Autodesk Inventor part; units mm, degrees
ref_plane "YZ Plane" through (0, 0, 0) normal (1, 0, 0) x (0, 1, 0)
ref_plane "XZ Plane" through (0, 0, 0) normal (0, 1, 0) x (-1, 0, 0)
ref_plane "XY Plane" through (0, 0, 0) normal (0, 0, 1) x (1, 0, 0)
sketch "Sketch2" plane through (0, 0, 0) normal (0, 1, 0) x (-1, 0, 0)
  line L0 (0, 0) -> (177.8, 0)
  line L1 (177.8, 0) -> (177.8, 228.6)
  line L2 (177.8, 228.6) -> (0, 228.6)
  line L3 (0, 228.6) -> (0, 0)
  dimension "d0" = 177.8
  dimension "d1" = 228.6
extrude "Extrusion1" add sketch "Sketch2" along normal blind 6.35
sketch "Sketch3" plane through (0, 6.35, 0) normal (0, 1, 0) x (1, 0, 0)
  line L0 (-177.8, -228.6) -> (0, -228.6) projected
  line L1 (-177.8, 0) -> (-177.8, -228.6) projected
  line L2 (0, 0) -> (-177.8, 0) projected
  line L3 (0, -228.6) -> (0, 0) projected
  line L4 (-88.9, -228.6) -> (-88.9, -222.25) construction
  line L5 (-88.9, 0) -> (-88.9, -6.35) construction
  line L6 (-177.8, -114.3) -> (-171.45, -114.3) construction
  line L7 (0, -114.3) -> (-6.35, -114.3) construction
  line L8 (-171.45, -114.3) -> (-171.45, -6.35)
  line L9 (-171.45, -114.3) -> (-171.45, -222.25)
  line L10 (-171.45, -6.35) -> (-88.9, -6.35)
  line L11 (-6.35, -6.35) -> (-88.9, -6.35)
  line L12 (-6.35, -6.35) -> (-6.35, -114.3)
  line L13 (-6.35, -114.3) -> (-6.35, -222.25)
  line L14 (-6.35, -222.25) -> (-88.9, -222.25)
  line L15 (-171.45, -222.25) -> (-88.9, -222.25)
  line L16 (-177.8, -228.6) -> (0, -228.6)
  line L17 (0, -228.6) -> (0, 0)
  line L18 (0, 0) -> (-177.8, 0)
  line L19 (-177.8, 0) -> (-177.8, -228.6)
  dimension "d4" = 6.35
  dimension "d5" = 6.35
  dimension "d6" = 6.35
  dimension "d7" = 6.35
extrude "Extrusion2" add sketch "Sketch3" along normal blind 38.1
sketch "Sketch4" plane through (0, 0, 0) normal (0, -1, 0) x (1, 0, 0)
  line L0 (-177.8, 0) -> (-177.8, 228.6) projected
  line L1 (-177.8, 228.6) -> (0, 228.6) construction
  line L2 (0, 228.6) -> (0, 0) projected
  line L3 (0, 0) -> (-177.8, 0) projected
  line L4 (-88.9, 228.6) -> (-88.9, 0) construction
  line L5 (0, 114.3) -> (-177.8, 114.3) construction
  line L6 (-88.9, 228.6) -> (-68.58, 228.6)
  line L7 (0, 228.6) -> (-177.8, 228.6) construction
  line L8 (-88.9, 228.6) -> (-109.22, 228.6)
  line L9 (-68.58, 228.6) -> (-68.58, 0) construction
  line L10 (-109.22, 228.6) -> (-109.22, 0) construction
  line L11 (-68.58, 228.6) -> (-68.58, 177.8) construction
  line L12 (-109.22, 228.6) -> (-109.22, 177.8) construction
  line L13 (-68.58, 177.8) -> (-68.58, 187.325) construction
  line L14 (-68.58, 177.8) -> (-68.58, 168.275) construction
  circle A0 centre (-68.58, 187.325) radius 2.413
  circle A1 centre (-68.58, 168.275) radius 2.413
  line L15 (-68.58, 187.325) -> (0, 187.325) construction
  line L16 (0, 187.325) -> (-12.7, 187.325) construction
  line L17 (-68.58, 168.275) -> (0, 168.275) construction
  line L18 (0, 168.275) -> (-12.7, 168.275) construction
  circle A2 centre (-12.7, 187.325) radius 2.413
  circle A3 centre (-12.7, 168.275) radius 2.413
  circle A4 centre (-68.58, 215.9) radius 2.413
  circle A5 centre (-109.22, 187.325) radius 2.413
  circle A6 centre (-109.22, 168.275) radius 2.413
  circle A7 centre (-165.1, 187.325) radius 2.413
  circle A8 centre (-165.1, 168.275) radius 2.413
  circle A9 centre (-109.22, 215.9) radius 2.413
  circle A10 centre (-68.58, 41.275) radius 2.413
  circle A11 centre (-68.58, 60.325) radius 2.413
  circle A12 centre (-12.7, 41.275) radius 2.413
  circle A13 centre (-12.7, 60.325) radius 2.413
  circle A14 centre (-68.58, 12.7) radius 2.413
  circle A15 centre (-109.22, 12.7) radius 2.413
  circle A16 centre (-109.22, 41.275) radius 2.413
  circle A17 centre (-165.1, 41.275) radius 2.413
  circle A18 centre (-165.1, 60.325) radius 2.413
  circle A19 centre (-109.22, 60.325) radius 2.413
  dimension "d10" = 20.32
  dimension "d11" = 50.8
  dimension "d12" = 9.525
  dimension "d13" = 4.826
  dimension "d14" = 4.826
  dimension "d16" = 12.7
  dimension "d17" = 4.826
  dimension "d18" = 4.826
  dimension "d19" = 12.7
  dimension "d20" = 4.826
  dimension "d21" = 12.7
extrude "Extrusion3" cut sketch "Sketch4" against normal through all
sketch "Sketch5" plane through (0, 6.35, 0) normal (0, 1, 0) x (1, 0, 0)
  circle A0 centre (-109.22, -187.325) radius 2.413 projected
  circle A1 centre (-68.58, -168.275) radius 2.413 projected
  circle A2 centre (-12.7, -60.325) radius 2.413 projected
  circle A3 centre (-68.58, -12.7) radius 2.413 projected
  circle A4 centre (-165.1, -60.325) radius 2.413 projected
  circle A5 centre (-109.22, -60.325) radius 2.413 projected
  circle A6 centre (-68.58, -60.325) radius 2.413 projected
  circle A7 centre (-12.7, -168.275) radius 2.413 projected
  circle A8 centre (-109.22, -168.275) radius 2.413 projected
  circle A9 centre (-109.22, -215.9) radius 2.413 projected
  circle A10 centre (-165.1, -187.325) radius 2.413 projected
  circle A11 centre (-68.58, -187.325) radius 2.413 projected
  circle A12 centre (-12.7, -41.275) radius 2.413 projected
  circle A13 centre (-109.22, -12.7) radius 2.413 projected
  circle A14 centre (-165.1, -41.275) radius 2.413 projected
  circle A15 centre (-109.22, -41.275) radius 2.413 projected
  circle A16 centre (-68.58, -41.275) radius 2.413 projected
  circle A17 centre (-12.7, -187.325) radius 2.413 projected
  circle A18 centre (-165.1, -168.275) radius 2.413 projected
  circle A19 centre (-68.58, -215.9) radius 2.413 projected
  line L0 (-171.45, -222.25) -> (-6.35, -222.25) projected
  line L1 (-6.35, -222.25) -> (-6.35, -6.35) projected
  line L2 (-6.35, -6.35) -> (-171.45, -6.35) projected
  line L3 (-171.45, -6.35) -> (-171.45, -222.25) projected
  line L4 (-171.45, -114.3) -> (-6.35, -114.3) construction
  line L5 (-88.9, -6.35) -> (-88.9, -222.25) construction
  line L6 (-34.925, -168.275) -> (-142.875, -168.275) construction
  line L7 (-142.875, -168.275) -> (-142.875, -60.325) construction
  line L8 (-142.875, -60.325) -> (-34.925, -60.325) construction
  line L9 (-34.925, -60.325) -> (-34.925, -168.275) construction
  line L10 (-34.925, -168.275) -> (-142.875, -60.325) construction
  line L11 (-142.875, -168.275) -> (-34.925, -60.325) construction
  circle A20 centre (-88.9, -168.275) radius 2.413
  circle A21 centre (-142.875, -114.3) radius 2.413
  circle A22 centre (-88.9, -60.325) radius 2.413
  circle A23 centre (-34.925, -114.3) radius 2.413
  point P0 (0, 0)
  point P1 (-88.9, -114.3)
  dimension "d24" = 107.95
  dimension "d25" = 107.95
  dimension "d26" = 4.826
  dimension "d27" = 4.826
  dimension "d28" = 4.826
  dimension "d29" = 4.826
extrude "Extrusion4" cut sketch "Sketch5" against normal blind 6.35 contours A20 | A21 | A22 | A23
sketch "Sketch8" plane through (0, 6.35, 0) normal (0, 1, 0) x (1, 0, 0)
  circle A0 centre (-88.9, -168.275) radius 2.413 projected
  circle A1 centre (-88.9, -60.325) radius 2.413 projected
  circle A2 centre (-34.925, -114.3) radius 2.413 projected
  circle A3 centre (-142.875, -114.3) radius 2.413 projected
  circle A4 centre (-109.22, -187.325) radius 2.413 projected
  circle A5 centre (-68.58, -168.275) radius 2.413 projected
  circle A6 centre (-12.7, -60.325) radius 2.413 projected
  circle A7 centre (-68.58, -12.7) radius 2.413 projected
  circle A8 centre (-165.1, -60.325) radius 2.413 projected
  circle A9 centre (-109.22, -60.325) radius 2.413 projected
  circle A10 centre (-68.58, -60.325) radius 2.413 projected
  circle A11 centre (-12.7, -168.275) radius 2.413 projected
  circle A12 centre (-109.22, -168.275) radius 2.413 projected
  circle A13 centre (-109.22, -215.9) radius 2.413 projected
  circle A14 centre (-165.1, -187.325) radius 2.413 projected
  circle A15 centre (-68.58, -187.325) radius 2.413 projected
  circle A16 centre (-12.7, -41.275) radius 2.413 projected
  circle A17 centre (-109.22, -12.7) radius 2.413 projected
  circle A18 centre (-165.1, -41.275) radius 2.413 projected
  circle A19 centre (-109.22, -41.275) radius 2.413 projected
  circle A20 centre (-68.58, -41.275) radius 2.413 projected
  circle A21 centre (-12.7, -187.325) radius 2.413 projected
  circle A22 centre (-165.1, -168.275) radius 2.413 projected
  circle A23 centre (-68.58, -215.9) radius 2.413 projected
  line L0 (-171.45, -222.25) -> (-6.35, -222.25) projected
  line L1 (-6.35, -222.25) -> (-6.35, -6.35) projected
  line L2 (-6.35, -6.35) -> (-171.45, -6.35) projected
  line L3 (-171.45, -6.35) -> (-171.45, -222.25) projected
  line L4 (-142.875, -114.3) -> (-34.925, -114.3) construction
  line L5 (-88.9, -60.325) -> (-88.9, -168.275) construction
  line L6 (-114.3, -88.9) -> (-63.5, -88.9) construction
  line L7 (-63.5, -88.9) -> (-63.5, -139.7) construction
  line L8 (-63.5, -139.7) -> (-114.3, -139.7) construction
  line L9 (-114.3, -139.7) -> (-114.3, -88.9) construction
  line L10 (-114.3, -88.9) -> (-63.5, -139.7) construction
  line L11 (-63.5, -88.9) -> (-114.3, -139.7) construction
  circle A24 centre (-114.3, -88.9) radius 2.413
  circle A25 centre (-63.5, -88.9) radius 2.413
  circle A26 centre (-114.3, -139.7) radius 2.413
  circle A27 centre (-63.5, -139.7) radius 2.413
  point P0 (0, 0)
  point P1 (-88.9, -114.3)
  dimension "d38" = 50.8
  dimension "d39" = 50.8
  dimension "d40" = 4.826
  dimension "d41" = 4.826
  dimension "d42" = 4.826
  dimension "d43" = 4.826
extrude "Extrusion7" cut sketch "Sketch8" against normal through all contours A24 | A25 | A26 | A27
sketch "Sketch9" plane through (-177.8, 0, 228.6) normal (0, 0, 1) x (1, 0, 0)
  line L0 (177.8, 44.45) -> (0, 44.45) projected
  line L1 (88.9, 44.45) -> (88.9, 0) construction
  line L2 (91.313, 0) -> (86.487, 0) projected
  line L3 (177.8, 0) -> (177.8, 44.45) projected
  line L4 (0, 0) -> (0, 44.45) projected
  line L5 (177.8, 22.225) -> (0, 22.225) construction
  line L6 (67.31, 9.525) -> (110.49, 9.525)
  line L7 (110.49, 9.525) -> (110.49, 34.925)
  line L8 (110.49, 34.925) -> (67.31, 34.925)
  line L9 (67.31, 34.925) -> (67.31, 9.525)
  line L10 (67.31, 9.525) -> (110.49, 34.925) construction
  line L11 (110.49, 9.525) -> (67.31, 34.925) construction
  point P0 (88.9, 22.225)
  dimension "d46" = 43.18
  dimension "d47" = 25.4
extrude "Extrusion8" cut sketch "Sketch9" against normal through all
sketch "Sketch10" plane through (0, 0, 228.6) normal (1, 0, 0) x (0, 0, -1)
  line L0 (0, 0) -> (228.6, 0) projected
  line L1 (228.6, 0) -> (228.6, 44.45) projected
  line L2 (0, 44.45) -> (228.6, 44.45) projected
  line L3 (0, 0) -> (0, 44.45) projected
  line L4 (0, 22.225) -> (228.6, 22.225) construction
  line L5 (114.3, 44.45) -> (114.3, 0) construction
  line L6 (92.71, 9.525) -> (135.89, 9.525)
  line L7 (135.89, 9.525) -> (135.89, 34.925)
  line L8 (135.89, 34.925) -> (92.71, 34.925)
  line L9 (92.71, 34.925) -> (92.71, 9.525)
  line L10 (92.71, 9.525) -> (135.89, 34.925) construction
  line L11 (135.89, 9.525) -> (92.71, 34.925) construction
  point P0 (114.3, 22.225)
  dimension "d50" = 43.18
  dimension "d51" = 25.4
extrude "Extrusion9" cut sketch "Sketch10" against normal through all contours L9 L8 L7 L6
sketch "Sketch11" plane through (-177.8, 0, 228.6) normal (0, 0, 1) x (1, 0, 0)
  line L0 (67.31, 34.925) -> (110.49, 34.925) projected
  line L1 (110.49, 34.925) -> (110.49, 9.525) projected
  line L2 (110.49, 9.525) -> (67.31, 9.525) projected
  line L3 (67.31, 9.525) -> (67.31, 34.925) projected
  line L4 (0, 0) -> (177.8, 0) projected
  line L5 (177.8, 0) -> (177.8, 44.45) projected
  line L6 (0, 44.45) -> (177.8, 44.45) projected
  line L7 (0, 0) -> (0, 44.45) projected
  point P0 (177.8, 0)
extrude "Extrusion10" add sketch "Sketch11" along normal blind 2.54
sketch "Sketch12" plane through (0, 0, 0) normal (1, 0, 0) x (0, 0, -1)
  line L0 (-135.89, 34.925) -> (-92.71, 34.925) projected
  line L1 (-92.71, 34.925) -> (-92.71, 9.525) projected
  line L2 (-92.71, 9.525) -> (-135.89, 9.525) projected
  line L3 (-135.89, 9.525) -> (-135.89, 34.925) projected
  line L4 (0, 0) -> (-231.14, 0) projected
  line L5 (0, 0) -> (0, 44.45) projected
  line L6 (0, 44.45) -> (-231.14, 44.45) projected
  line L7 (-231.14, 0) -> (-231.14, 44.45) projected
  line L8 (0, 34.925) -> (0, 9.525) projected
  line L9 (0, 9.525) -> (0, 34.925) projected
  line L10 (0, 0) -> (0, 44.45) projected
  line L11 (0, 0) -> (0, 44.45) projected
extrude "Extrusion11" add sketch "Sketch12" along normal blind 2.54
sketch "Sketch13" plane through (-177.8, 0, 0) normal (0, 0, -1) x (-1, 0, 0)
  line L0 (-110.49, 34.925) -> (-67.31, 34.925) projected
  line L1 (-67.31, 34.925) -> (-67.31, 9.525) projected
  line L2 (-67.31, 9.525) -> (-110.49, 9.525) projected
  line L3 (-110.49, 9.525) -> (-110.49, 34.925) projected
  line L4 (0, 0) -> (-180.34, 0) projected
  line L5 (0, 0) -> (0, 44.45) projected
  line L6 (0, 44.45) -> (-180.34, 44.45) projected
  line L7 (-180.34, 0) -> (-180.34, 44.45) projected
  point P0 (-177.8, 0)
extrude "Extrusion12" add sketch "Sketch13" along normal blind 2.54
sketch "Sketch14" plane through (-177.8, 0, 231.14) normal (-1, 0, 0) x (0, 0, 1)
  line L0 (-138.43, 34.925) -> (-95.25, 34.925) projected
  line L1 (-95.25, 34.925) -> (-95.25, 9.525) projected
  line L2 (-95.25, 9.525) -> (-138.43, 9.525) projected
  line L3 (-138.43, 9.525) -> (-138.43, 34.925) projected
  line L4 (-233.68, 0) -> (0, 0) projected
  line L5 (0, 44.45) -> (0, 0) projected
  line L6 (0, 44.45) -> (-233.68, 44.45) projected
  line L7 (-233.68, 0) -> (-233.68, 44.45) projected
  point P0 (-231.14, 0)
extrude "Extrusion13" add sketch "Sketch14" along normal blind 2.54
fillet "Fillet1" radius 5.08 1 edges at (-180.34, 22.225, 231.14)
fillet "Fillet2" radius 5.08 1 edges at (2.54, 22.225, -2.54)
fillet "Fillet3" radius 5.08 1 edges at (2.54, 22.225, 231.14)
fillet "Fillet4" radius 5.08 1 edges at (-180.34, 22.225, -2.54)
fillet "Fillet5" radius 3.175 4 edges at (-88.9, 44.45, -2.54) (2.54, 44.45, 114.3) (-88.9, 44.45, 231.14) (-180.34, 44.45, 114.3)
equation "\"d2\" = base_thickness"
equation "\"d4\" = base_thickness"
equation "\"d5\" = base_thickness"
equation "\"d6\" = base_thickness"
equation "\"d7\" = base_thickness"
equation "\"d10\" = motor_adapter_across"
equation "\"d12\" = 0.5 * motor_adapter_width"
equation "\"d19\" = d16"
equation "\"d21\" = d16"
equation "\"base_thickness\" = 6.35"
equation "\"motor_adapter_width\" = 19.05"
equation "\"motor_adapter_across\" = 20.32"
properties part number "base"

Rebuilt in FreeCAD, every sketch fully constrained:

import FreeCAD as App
import Part
import Sketcher
from FreeCAD import Vector
Q = App.Units.Quantity


def edges_at(feature, points):
    """Names of the edges that pass closest to the given points."""
    edges = feature.Shape.Edges
    near = lambda p: min(range(len(edges)), key=lambda i: edges[i].distToShape(Part.Vertex(*p))[0])
    return sorted({f"Edge{near(p) + 1}" for p in points})

doc = App.newDocument("Part")
params = doc.addObject("Spreadsheet::Sheet", "Params")
for row, (alias, value) in enumerate([
    ("sketch1_width", "7 in"),
    ("sketch1_height", "9 in"),
    ("pad1_length", "0.25 in"),
    ("sketch2_width", "7 in"),
    ("sketch2_height", "9 in"),
    ("pad2_length", "1.5 in"),
    ("sketch3_diameter", "0.19 in"),
    ("sketch4_diameter", "0.19 in"),
    ("pocket2_length", "0.25 in"),
    ("sketch5_diameter", "0.19 in"),
    ("sketch6_height", "1 in"),
    ("sketch6_width", "1.7 in"),
    ("sketch7_width", "1 in"),
    ("sketch7_height", "1.7 in"),
    ("sketch8_width", "7 in"),
    ("sketch8_height", "1 in"),
    ("sketch8_width2", "1.7 in"),
    ("sketch8_height2", "1.75 in"),
    ("pad3_length", "0.1 in"),
    ("sketch9_width", "1 in"),
    ("sketch9_height", "9.1 in"),
    ("sketch9_height2", "1.7 in"),
    ("sketch9_width2", "1.75 in"),
    ("pad4_length", "0.1 in"),
    ("sketch10_height", "1 in"),
    ("sketch10_width", "7.1 in"),
    ("sketch10_width2", "1.7 in"),
    ("sketch10_height2", "1.75 in"),
    ("pad5_length", "0.1 in"),
    ("sketch11_width", "1 in"),
    ("sketch11_height", "9.2 in"),
    ("sketch11_height2", "1.7 in"),
    ("sketch11_width2", "1.75 in"),
    ("pad6_length", "0.1 in"),
    ("fillet_radius", "0.2 in"),
    ("fillet2_radius", "0.2 in"),
    ("fillet3_radius", "0.2 in"),
    ("fillet4_radius", "0.2 in"),
    ("fillet5_radius", "0.125 in"),
], start=1):
    params.set(f"A{row}", alias)
    params.set(f"B{row}", "=" + value)
    params.setAlias(f"B{row}", alias)

body = doc.addObject("PartDesign::Body", "Body")

# Sketch on XZ plane
sketch1 = body.newObject("Sketcher::SketchObject", "Sketch")
sketch1.AttachmentSupport = (doc.getObject("XZ_Plane"), [""])
sketch1.MapMode = "FlatFace"
sketch1.addGeometry([
    Part.LineSegment(Vector(0, 228.6, 0), Vector(0, 0, 0)),
    Part.LineSegment(Vector(0, 0, 0), Vector(-177.8, 0, 0)),
    Part.LineSegment(Vector(-177.8, 0, 0), Vector(-177.8, 228.6, 0)),
    Part.LineSegment(Vector(-177.8, 228.6, 0), Vector(0, 228.6, 0)),
], False)
sketch1.addConstraint([
    Sketcher.Constraint("Coincident", 0, 2, 1, 1),
    Sketcher.Constraint("Coincident", 1, 2, 2, 1),
    Sketcher.Constraint("Coincident", 2, 2, 3, 1),
    Sketcher.Constraint("Coincident", 3, 2, 0, 1),
    Sketcher.Constraint("Vertical", 0),
    Sketcher.Constraint("Horizontal", 1),
    Sketcher.Constraint("Vertical", 2),
    Sketcher.Constraint("Horizontal", 3),
    Sketcher.Constraint("Coincident", 0, 2, -1, 1),
    Sketcher.Constraint("DistanceX", 1, 2, 1, 1, Q("7 in")),
    Sketcher.Constraint("DistanceY", 0, 2, 0, 1, Q("9 in")),
])
sketch1.setExpression("Constraints[9]", "Params.sketch1_width")
sketch1.setExpression("Constraints[10]", "Params.sketch1_height")
pad1 = body.newObject("PartDesign::Pad", "Pad")
pad1.Profile = sketch1
pad1.setExpression("Length", "Params.pad1_length")
pad1.Reversed = True

# Sketch on XZ plane
sketch2 = body.newObject("Sketcher::SketchObject", "Sketch001")
sketch2.AttachmentSupport = (doc.getObject("XZ_Plane"), [""])
sketch2.MapMode = "FlatFace"
sketch2.AttachmentOffset = App.Placement(Vector(0, 0, -0.25 * 25.4), App.Rotation())
sketch2.addGeometry([
    Part.LineSegment(Vector(-177.8, 0, 0), Vector(-177.8, 228.6, 0)),  # 0
    Part.LineSegment(Vector(-177.8, 228.6, 0), Vector(0, 228.6, 0)),  # 1
    Part.LineSegment(Vector(0, 228.6, 0), Vector(0, 0, 0)),  # 2
    Part.LineSegment(Vector(0, 0, 0), Vector(-177.8, 0, 0)),  # 3
    Part.LineSegment(Vector(-171.45, 222.25, 0), Vector(-171.45, 6.35, 0)),  # 4
    Part.LineSegment(Vector(-171.45, 6.35, 0), Vector(-6.35, 6.35, 0)),  # 5
    Part.LineSegment(Vector(-6.35, 6.35, 0), Vector(-6.35, 222.25, 0)),  # 6
    Part.LineSegment(Vector(-6.35, 222.25, 0), Vector(-171.45, 222.25, 0)),  # 7
], False)
sketch2.addConstraint([
    Sketcher.Constraint("Coincident", 0, 2, 1, 1),
    Sketcher.Constraint("Coincident", 1, 2, 2, 1),
    Sketcher.Constraint("Coincident", 2, 2, 3, 1),
    Sketcher.Constraint("Coincident", 3, 2, 0, 1),
    Sketcher.Constraint("Coincident", 4, 2, 5, 1),
    Sketcher.Constraint("Coincident", 5, 2, 6, 1),
    Sketcher.Constraint("Coincident", 6, 2, 7, 1),
    Sketcher.Constraint("Coincident", 7, 2, 4, 1),
    Sketcher.Constraint("Vertical", 0),
    Sketcher.Constraint("Horizontal", 1),
    Sketcher.Constraint("Vertical", 2),
    Sketcher.Constraint("Horizontal", 3),
    Sketcher.Constraint("Vertical", 4),
    Sketcher.Constraint("Horizontal", 5),
    Sketcher.Constraint("Vertical", 6),
    Sketcher.Constraint("Horizontal", 7),
    Sketcher.Constraint("Coincident", 2, 2, -1, 1),
    Sketcher.Constraint("DistanceX", 1, 1, 1, 2, Q("7 in")),
    Sketcher.Constraint("DistanceY", 0, 1, 0, 2, Q("9 in")),
    Sketcher.Constraint("DistanceY", -1, 1, 4, 2, Q("0.25 in")),
    Sketcher.Constraint("DistanceX", 5, 2, -1, 1, Q("0.25 in")),
    Sketcher.Constraint("DistanceX", 3, 2, 4, 2, Q("0.25 in")),
    Sketcher.Constraint("DistanceY", 6, 2, 1, 2, Q("0.25 in")),
])
sketch2.setExpression("Constraints[17]", "Params.sketch2_width")
sketch2.setExpression("Constraints[18]", "Params.sketch2_height")
pad2 = body.newObject("PartDesign::Pad", "Pad001")
pad2.Profile = sketch2
pad2.setExpression("Length", "Params.pad2_length")
pad2.Reversed = True

# Sketch on XZ plane
sketch3 = body.newObject("Sketcher::SketchObject", "Sketch002")
sketch3.AttachmentSupport = (doc.getObject("XZ_Plane"), [""])
sketch3.MapMode = "FlatFace"
sketch3.addGeometry([
    Part.Circle(Vector(-68.58, 187.325, 0), Vector(0, 0, 1), 2.413),  # 0
    Part.Circle(Vector(-68.58, 168.275, 0), Vector(0, 0, 1), 2.413),  # 1
    Part.Circle(Vector(-12.7, 187.325, 0), Vector(0, 0, 1), 2.413),  # 2
    Part.Circle(Vector(-12.7, 168.275, 0), Vector(0, 0, 1), 2.413),  # 3
    Part.Circle(Vector(-68.58, 215.9, 0), Vector(0, 0, 1), 2.413),  # 4
    Part.Circle(Vector(-109.22, 187.325, 0), Vector(0, 0, 1), 2.413),  # 5
    Part.Circle(Vector(-109.22, 168.275, 0), Vector(0, 0, 1), 2.413),  # 6
    Part.Circle(Vector(-165.1, 187.325, 0), Vector(0, 0, 1), 2.413),  # 7
    Part.Circle(Vector(-165.1, 168.275, 0), Vector(0, 0, 1), 2.413),  # 8
    Part.Circle(Vector(-109.22, 215.9, 0), Vector(0, 0, 1), 2.413),  # 9
    Part.Circle(Vector(-68.58, 41.275, 0), Vector(0, 0, 1), 2.413),  # 10
    Part.Circle(Vector(-68.58, 60.325, 0), Vector(0, 0, 1), 2.413),  # 11
    Part.Circle(Vector(-12.7, 41.275, 0), Vector(0, 0, 1), 2.413),  # 12
    Part.Circle(Vector(-12.7, 60.325, 0), Vector(0, 0, 1), 2.413),  # 13
    Part.Circle(Vector(-68.58, 12.7, 0), Vector(0, 0, 1), 2.413),  # 14
    Part.Circle(Vector(-109.22, 12.7, 0), Vector(0, 0, 1), 2.413),  # 15
    Part.Circle(Vector(-109.22, 41.275, 0), Vector(0, 0, 1), 2.413),  # 16
    Part.Circle(Vector(-165.1, 41.275, 0), Vector(0, 0, 1), 2.413),  # 17
    Part.Circle(Vector(-165.1, 60.325, 0), Vector(0, 0, 1), 2.413),  # 18
    Part.Circle(Vector(-109.22, 60.325, 0), Vector(0, 0, 1), 2.413),  # 19
], False)
sketch3.addConstraint([
    Sketcher.Constraint("Equal", 0, 1),
    Sketcher.Constraint("Equal", 1, 2),
    Sketcher.Constraint("Equal", 2, 3),
    Sketcher.Constraint("Equal", 3, 4),
    Sketcher.Constraint("Equal", 4, 5),
    Sketcher.Constraint("Equal", 5, 6),
    Sketcher.Constraint("Equal", 6, 7),
    Sketcher.Constraint("Equal", 7, 8),
    Sketcher.Constraint("Equal", 8, 9),
    Sketcher.Constraint("Equal", 9, 10),
    Sketcher.Constraint("Equal", 10, 11),
    Sketcher.Constraint("Equal", 11, 12),
    Sketcher.Constraint("Equal", 12, 13),
    Sketcher.Constraint("Equal", 13, 14),
    Sketcher.Constraint("Equal", 14, 15),
    Sketcher.Constraint("Equal", 15, 16),
    Sketcher.Constraint("Equal", 16, 17),
    Sketcher.Constraint("Equal", 17, 18),
    Sketcher.Constraint("Equal", 18, 19),
    Sketcher.Constraint("Horizontal", 0, 3, 2, 3),
    Sketcher.Constraint("Horizontal", 1, 3, 3, 3),
    Sketcher.Constraint("Horizontal", 2, 3, 5, 3),
    Sketcher.Constraint("Horizontal", 3, 3, 6, 3),
    Sketcher.Constraint("Horizontal", 5, 3, 7, 3),
    Sketcher.Constraint("Horizontal", 6, 3, 8, 3),
    Sketcher.Constraint("Horizontal", 4, 3, 9, 3),
    Sketcher.Constraint("Horizontal", 10, 3, 12, 3),
    Sketcher.Constraint("Horizontal", 11, 3, 13, 3),
    Sketcher.Constraint("Horizontal", 14, 3, 15, 3),
    Sketcher.Constraint("Horizontal", 12, 3, 16, 3),
    Sketcher.Constraint("Horizontal", 16, 3, 17, 3),
    Sketcher.Constraint("Horizontal", 13, 3, 18, 3),
    Sketcher.Constraint("Horizontal", 18, 3, 19, 3),
    Sketcher.Constraint("Vertical", 0, 3, 1, 3),
    Sketcher.Constraint("Vertical", 2, 3, 3, 3),
    Sketcher.Constraint("Vertical", 1, 3, 4, 3),
    Sketcher.Constraint("Vertical", 5, 3, 6, 3),
    Sketcher.Constraint("Vertical", 7, 3, 8, 3),
    Sketcher.Constraint("Vertical", 6, 3, 9, 3),
    Sketcher.Constraint("Vertical", 4, 3, 10, 3),
    Sketcher.Constraint("Vertical", 10, 3, 11, 3),
    Sketcher.Constraint("Vertical", 3, 3, 12, 3),
    Sketcher.Constraint("Vertical", 12, 3, 13, 3),
    Sketcher.Constraint("Vertical", 11, 3, 14, 3),
    Sketcher.Constraint("Vertical", 9, 3, 15, 3),
    Sketcher.Constraint("Vertical", 15, 3, 16, 3),
    Sketcher.Constraint("Vertical", 8, 3, 17, 3),
    Sketcher.Constraint("Vertical", 17, 3, 18, 3),
    Sketcher.Constraint("Vertical", 16, 3, 19, 3),
    Sketcher.Constraint("Diameter", 0, Q("0.19 in")),
    Sketcher.Constraint("DistanceX", 2, 3, -1, 1, Q("0.5 in")),
    Sketcher.Constraint("DistanceY", -1, 1, 14, 3, Q("0.5 in")),
    Sketcher.Constraint("DistanceY", 10, 3, 1, 3, Q("5 in")),
    Sketcher.Constraint("DistanceY", 11, 3, 0, 3, Q("5 in")),
    Sketcher.Constraint("DistanceX", 0, 3, -1, 1, Q("2.7 in")),
    Sketcher.Constraint("DistanceY", -1, 1, 4, 3, Q("8.5 in")),
    Sketcher.Constraint("DistanceX", 5, 3, -1, 1, Q("4.3 in")),
    Sketcher.Constraint("DistanceX", 7, 3, -1, 1, Q("6.5 in")),
    Sketcher.Constraint("DistanceY", 1, 3, 0, 3, Q("0.75 in")),
    Sketcher.Constraint("DistanceY", -1, 1, 0, 3, Q("7.375 in")),
])
sketch3.setExpression("Constraints[49]", "Params.sketch3_diameter")
pocket1 = body.newObject("PartDesign::Pocket", "Pocket")
pocket1.Profile = sketch3
pocket1.Type = "ThroughAll"

# Sketch on XZ plane
sketch4 = body.newObject("Sketcher::SketchObject", "Sketch003")
sketch4.AttachmentSupport = (doc.getObject("XZ_Plane"), [""])
sketch4.MapMode = "FlatFace"
sketch4.AttachmentOffset = App.Placement(Vector(0, 0, -0.25 * 25.4), App.Rotation())
sketch4.addGeometry([
    Part.Circle(Vector(-88.9, 168.275, 0), Vector(0, 0, 1), 2.413),
    Part.Circle(Vector(-142.875, 114.3, 0), Vector(0, 0, 1), 2.413),
    Part.Circle(Vector(-88.9, 60.325, 0), Vector(0, 0, 1), 2.413),
    Part.Circle(Vector(-34.925, 114.3, 0), Vector(0, 0, 1), 2.413),
], False)
sketch4.addConstraint([
    Sketcher.Constraint("Equal", 0, 1),
    Sketcher.Constraint("Equal", 1, 2),
    Sketcher.Constraint("Equal", 2, 3),
    Sketcher.Constraint("Horizontal", 1, 3, 3, 3),
    Sketcher.Constraint("Vertical", 0, 3, 2, 3),
    Sketcher.Constraint("Diameter", 0, Q("0.19 in")),
    Sketcher.Constraint("DistanceY", 2, 3, 0, 3, Q("4.25 in")),
    Sketcher.Constraint("DistanceX", 1, 3, 3, 3, Q("4.25 in")),
    Sketcher.Constraint("DistanceX", 0, 3, -1, 1, Q("3.5 in")),
    Sketcher.Constraint("DistanceY", -1, 1, 1, 3, Q("4.5 in")),
    Sketcher.Constraint("DistanceY", -1, 1, 0, 3, Q("6.625 in")),
    Sketcher.Constraint("DistanceX", 1, 3, -1, 1, Q("5.625 in")),
])
sketch4.setExpression("Constraints[5]", "Params.sketch4_diameter")
pocket2 = body.newObject("PartDesign::Pocket", "Pocket001")
pocket2.Profile = sketch4
pocket2.setExpression("Length", "Params.pocket2_length")
pocket2.Reversed = True

# Sketch on XZ plane
sketch5 = body.newObject("Sketcher::SketchObject", "Sketch004")
sketch5.AttachmentSupport = (doc.getObject("XZ_Plane"), [""])
sketch5.MapMode = "FlatFace"
sketch5.AttachmentOffset = App.Placement(Vector(0, 0, -0.25 * 25.4), App.Rotation())
sketch5.addGeometry([
    Part.Circle(Vector(-114.3, 88.9, 0), Vector(0, 0, 1), 2.413),
    Part.Circle(Vector(-63.5, 88.9, 0), Vector(0, 0, 1), 2.413),
    Part.Circle(Vector(-114.3, 139.7, 0), Vector(0, 0, 1), 2.413),
    Part.Circle(Vector(-63.5, 139.7, 0), Vector(0, 0, 1), 2.413),
], False)
sketch5.addConstraint([
    Sketcher.Constraint("Equal", 0, 1),
    Sketcher.Constraint("Equal", 1, 2),
    Sketcher.Constraint("Equal", 2, 3),
    Sketcher.Constraint("Horizontal", 0, 3, 1, 3),
    Sketcher.Constraint("Horizontal", 2, 3, 3, 3),
    Sketcher.Constraint("Vertical", 0, 3, 2, 3),
    Sketcher.Constraint("Vertical", 1, 3, 3, 3),
    Sketcher.Constraint("Diameter", 0, Q("0.19 in")),
    Sketcher.Constraint("DistanceX", 0, 3, 1, 3, Q("2 in")),
    Sketcher.Constraint("DistanceY", 0, 3, 2, 3, Q("2 in")),
    Sketcher.Constraint("DistanceX", 0, 3, -1, 1, Q("4.5 in")),
    Sketcher.Constraint("DistanceY", -1, 1, 0, 3, Q("3.5 in")),
])
sketch5.setExpression("Constraints[7]", "Params.sketch5_diameter")
pocket3 = body.newObject("PartDesign::Pocket", "Pocket002")
pocket3.Profile = sketch5
pocket3.Type = "ThroughAll"
pocket3.Reversed = True

# Sketch on XY plane
sketch6 = body.newObject("Sketcher::SketchObject", "Sketch005")
sketch6.AttachmentSupport = (doc.getObject("XY_Plane"), [""])
sketch6.MapMode = "FlatFace"
sketch6.AttachmentOffset = App.Placement(Vector(0, 0, 9 * 25.4), App.Rotation())
sketch6.addGeometry([
    Part.LineSegment(Vector(-110.49, 34.925, 0), Vector(-110.49, 9.525, 0)),
    Part.LineSegment(Vector(-110.49, 9.525, 0), Vector(-67.31, 9.525, 0)),
    Part.LineSegment(Vector(-67.31, 9.525, 0), Vector(-67.31, 34.925, 0)),
    Part.LineSegment(Vector(-67.31, 34.925, 0), Vector(-110.49, 34.925, 0)),
], False)
sketch6.addConstraint([
    Sketcher.Constraint("Coincident", 0, 2, 1, 1),
    Sketcher.Constraint("Coincident", 1, 2, 2, 1),
    Sketcher.Constraint("Coincident", 2, 2, 3, 1),
    Sketcher.Constraint("Coincident", 3, 2, 0, 1),
    Sketcher.Constraint("Vertical", 0),
    Sketcher.Constraint("Horizontal", 1),
    Sketcher.Constraint("Vertical", 2),
    Sketcher.Constraint("Horizontal", 3),
    Sketcher.Constraint("DistanceY", 0, 2, 0, 1, Q("1 in")),
    Sketcher.Constraint("DistanceX", 1, 1, 1, 2, Q("1.7 in")),
    Sketcher.Constraint("DistanceX", 0, 2, -1, 1, Q("4.35 in")),
    Sketcher.Constraint("DistanceY", -1, 1, 0, 2, Q("0.375 in")),
])
sketch6.setExpression("Constraints[8]", "Params.sketch6_height")
sketch6.setExpression("Constraints[9]", "Params.sketch6_width")
pocket4 = body.newObject("PartDesign::Pocket", "Pocket003")
pocket4.Profile = sketch6
pocket4.Type = "ThroughAll"

# Sketch on YZ plane
sketch7 = body.newObject("Sketcher::SketchObject", "Sketch006")
sketch7.AttachmentSupport = (doc.getObject("YZ_Plane"), [""])
sketch7.MapMode = "FlatFace"
sketch7.addGeometry([
    Part.LineSegment(Vector(34.925, 135.89, 0), Vector(9.525, 135.89, 0)),
    Part.LineSegment(Vector(9.525, 135.89, 0), Vector(9.525, 92.71, 0)),
    Part.LineSegment(Vector(9.525, 92.71, 0), Vector(34.925, 92.71, 0)),
    Part.LineSegment(Vector(34.925, 92.71, 0), Vector(34.925, 135.89, 0)),
], False)
sketch7.addConstraint([
    Sketcher.Constraint("Coincident", 0, 2, 1, 1),
    Sketcher.Constraint("Coincident", 1, 2, 2, 1),
    Sketcher.Constraint("Coincident", 2, 2, 3, 1),
    Sketcher.Constraint("Coincident", 3, 2, 0, 1),
    Sketcher.Constraint("Horizontal", 0),
    Sketcher.Constraint("Vertical", 1),
    Sketcher.Constraint("Horizontal", 2),
    Sketcher.Constraint("Vertical", 3),
    Sketcher.Constraint("DistanceX", 0, 2, 0, 1, Q("1 in")),
    Sketcher.Constraint("DistanceY", 1, 2, 1, 1, Q("1.7 in")),
    Sketcher.Constraint("DistanceY", -1, 1, 0, 2, Q("5.35 in")),
    Sketcher.Constraint("DistanceX", -1, 1, 0, 2, Q("0.375 in")),
])
sketch7.setExpression("Constraints[8]", "Params.sketch7_width")
sketch7.setExpression("Constraints[9]", "Params.sketch7_height")
pocket5 = body.newObject("PartDesign::Pocket", "Pocket004")
pocket5.Profile = sketch7
pocket5.Type = "ThroughAll"

# Sketch on XY plane
sketch8 = body.newObject("Sketcher::SketchObject", "Sketch007")
sketch8.AttachmentSupport = (doc.getObject("XY_Plane"), [""])
sketch8.MapMode = "FlatFace"
sketch8.AttachmentOffset = App.Placement(Vector(0, 0, 9 * 25.4), App.Rotation())
sketch8.addGeometry([
    Part.LineSegment(Vector(-177.8, 44.45, 0), Vector(-177.8, 0, 0)),  # 0
    Part.LineSegment(Vector(-177.8, 0, 0), Vector(0, 0, 0)),  # 1
    Part.LineSegment(Vector(0, 0, 0), Vector(0, 44.45, 0)),  # 2
    Part.LineSegment(Vector(0, 44.45, 0), Vector(-177.8, 44.45, 0)),  # 3
    Part.LineSegment(Vector(-110.49, 9.525, 0), Vector(-110.49, 34.925, 0)),  # 4
    Part.LineSegment(Vector(-110.49, 34.925, 0), Vector(-67.31, 34.925, 0)),  # 5
    Part.LineSegment(Vector(-67.31, 34.925, 0), Vector(-67.31, 9.525, 0)),  # 6
    Part.LineSegment(Vector(-67.31, 9.525, 0), Vector(-110.49, 9.525, 0)),  # 7
], False)
sketch8.addConstraint([
    Sketcher.Constraint("Coincident", 0, 2, 1, 1),
    Sketcher.Constraint("Coincident", 1, 2, 2, 1),
    Sketcher.Constraint("Coincident", 2, 2, 3, 1),
    Sketcher.Constraint("Coincident", 3, 2, 0, 1),
    Sketcher.Constraint("Coincident", 4, 2, 5, 1),
    Sketcher.Constraint("Coincident", 5, 2, 6, 1),
    Sketcher.Constraint("Coincident", 6, 2, 7, 1),
    Sketcher.Constraint("Coincident", 7, 2, 4, 1),
    Sketcher.Constraint("Vertical", 0),
    Sketcher.Constraint("Horizontal", 1),
    Sketcher.Constraint("Vertical", 2),
    Sketcher.Constraint("Horizontal", 3),
    Sketcher.Constraint("Vertical", 4),
    Sketcher.Constraint("Horizontal", 5),
    Sketcher.Constraint("Vertical", 6),
    Sketcher.Constraint("Horizontal", 7),
    Sketcher.Constraint("Coincident", 1, 2, -1, 1),
    Sketcher.Constraint("DistanceX", 1, 1, 1, 2, Q("7 in")),
    Sketcher.Constraint("DistanceY", 4, 1, 4, 2, Q("1 in")),
    Sketcher.Constraint("DistanceX", 5, 1, 5, 2, Q("1.7 in")),
    Sketcher.Constraint("DistanceY", 0, 2, 0, 1, Q("1.75 in")),
    Sketcher.Constraint("DistanceX", 4, 2, -1, 1, Q("4.35 in")),
    Sketcher.Constraint("DistanceY", -1, 1, 4, 2, Q("1.375 in")),
])
sketch8.setExpression("Constraints[17]", "Params.sketch8_width")
sketch8.setExpression("Constraints[18]", "Params.sketch8_height")
sketch8.setExpression("Constraints[19]", "Params.sketch8_width2")
sketch8.setExpression("Constraints[20]", "Params.sketch8_height2")
pad3 = body.newObject("PartDesign::Pad", "Pad002")
pad3.Profile = sketch8
pad3.setExpression("Length", "Params.pad3_length")

# Sketch on YZ plane
sketch9 = body.newObject("Sketcher::SketchObject", "Sketch008")
sketch9.AttachmentSupport = (doc.getObject("YZ_Plane"), [""])
sketch9.MapMode = "FlatFace"
sketch9.addGeometry([
    Part.LineSegment(Vector(0, 231.14, 0), Vector(0, 0, 0)),  # 0
    Part.LineSegment(Vector(0, 0, 0), Vector(44.45, 0, 0)),  # 1
    Part.LineSegment(Vector(44.45, 0, 0), Vector(44.45, 231.14, 0)),  # 2
    Part.LineSegment(Vector(44.45, 231.14, 0), Vector(0, 231.14, 0)),  # 3
    Part.LineSegment(Vector(9.525, 135.89, 0), Vector(34.925, 135.89, 0)),  # 4
    Part.LineSegment(Vector(34.925, 135.89, 0), Vector(34.925, 92.71, 0)),  # 5
    Part.LineSegment(Vector(34.925, 92.71, 0), Vector(9.525, 92.71, 0)),  # 6
    Part.LineSegment(Vector(9.525, 92.71, 0), Vector(9.525, 135.89, 0)),  # 7
], False)
sketch9.addConstraint([
    Sketcher.Constraint("Coincident", 0, 2, 1, 1),
    Sketcher.Constraint("Coincident", 1, 2, 2, 1),
    Sketcher.Constraint("Coincident", 2, 2, 3, 1),
    Sketcher.Constraint("Coincident", 3, 2, 0, 1),
    Sketcher.Constraint("Coincident", 4, 2, 5, 1),
    Sketcher.Constraint("Coincident", 5, 2, 6, 1),
    Sketcher.Constraint("Coincident", 6, 2, 7, 1),
    Sketcher.Constraint("Coincident", 7, 2, 4, 1),
    Sketcher.Constraint("Vertical", 0),
    Sketcher.Constraint("Horizontal", 1),
    Sketcher.Constraint("Vertical", 2),
    Sketcher.Constraint("Horizontal", 3),
    Sketcher.Constraint("Horizontal", 4),
    Sketcher.Constraint("Vertical", 5),
    Sketcher.Constraint("Horizontal", 6),
    Sketcher.Constraint("Vertical", 7),
    Sketcher.Constraint("Coincident", 0, 2, -1, 1),
    Sketcher.Constraint("DistanceX", 4, 1, 4, 2, Q("1 in")),
    Sketcher.Constraint("DistanceY", 0, 2, 0, 1, Q("9.1 in")),
    Sketcher.Constraint("DistanceY", 5, 2, 5, 1, Q("1.7 in")),
    Sketcher.Constraint("DistanceX", 1, 1, 1, 2, Q("1.75 in")),
    Sketcher.Constraint("DistanceY", -1, 1, 4, 2, Q("5.35 in")),
    Sketcher.Constraint("DistanceX", -1, 1, 4, 2, Q("1.375 in")),
])
sketch9.setExpression("Constraints[17]", "Params.sketch9_width")
sketch9.setExpression("Constraints[18]", "Params.sketch9_height")
sketch9.setExpression("Constraints[19]", "Params.sketch9_height2")
sketch9.setExpression("Constraints[20]", "Params.sketch9_width2")
pad4 = body.newObject("PartDesign::Pad", "Pad003")
pad4.Profile = sketch9
pad4.setExpression("Length", "Params.pad4_length")

# Sketch on XY plane
sketch10 = body.newObject("Sketcher::SketchObject", "Sketch009")
sketch10.AttachmentSupport = (doc.getObject("XY_Plane"), [""])
sketch10.MapMode = "FlatFace"
sketch10.addGeometry([
    Part.LineSegment(Vector(2.54, 0, 0), Vector(-177.8, 0, 0)),  # 0
    Part.LineSegment(Vector(-177.8, 0, 0), Vector(-177.8, 44.45, 0)),  # 1
    Part.LineSegment(Vector(-177.8, 44.45, 0), Vector(2.54, 44.45, 0)),  # 2
    Part.LineSegment(Vector(2.54, 44.45, 0), Vector(2.54, 0, 0)),  # 3
    Part.LineSegment(Vector(-67.31, 9.525, 0), Vector(-67.31, 34.925, 0)),  # 4
    Part.LineSegment(Vector(-67.31, 34.925, 0), Vector(-110.49, 34.925, 0)),  # 5
    Part.LineSegment(Vector(-110.49, 34.925, 0), Vector(-110.49, 9.525, 0)),  # 6
    Part.LineSegment(Vector(-110.49, 9.525, 0), Vector(-67.31, 9.525, 0)),  # 7
], False)
sketch10.addConstraint([
    Sketcher.Constraint("Coincident", 0, 2, 1, 1),
    Sketcher.Constraint("Coincident", 1, 2, 2, 1),
    Sketcher.Constraint("Coincident", 2, 2, 3, 1),
    Sketcher.Constraint("Coincident", 3, 2, 0, 1),
    Sketcher.Constraint("Coincident", 4, 2, 5, 1),
    Sketcher.Constraint("Coincident", 5, 2, 6, 1),
    Sketcher.Constraint("Coincident", 6, 2, 7, 1),
    Sketcher.Constraint("Coincident", 7, 2, 4, 1),
    Sketcher.Constraint("Horizontal", 0),
    Sketcher.Constraint("Vertical", 1),
    Sketcher.Constraint("Horizontal", 2),
    Sketcher.Constraint("Vertical", 3),
    Sketcher.Constraint("Vertical", 4),
    Sketcher.Constraint("Horizontal", 5),
    Sketcher.Constraint("Vertical", 6),
    Sketcher.Constraint("Horizontal", 7),
    Sketcher.Constraint("PointOnObject", 0, 2, -1),
    Sketcher.Constraint("DistanceY", 4, 1, 4, 2, Q("1 in")),
    Sketcher.Constraint("DistanceX", 0, 2, 0, 1, Q("7.1 in")),
    Sketcher.Constraint("DistanceX", 5, 2, 5, 1, Q("1.7 in")),
    Sketcher.Constraint("DistanceX", 0, 2, -1, 1, Q("7 in")),
    Sketcher.Constraint("DistanceY", 1, 1, 1, 2, Q("1.75 in")),
    Sketcher.Constraint("DistanceX", 4, 2, -1, 1, Q("2.65 in")),
    Sketcher.Constraint("DistanceY", -1, 1, 4, 2, Q("1.375 in")),
])
sketch10.setExpression("Constraints[17]", "Params.sketch10_height")
sketch10.setExpression("Constraints[18]", "Params.sketch10_width")
sketch10.setExpression("Constraints[19]", "Params.sketch10_width2")
sketch10.setExpression("Constraints[21]", "Params.sketch10_height2")
pad5 = body.newObject("PartDesign::Pad", "Pad004")
pad5.Profile = sketch10
pad5.setExpression("Length", "Params.pad5_length")
pad5.Reversed = True

# Sketch on YZ plane
sketch11 = body.newObject("Sketcher::SketchObject", "Sketch010")
sketch11.AttachmentSupport = (doc.getObject("YZ_Plane"), [""])
sketch11.MapMode = "FlatFace"
sketch11.AttachmentOffset = App.Placement(Vector(0, 0, -7 * 25.4), App.Rotation())
sketch11.addGeometry([
    Part.LineSegment(Vector(44.45, -2.54, 0), Vector(0, -2.54, 0)),  # 0
    Part.LineSegment(Vector(0, -2.54, 0), Vector(0, 231.14, 0)),  # 1
    Part.LineSegment(Vector(0, 231.14, 0), Vector(44.45, 231.14, 0)),  # 2
    Part.LineSegment(Vector(44.45, 231.14, 0), Vector(44.45, -2.54, 0)),  # 3
    Part.LineSegment(Vector(9.525, 92.71, 0), Vector(34.925, 92.71, 0)),  # 4
    Part.LineSegment(Vector(34.925, 92.71, 0), Vector(34.925, 135.89, 0)),  # 5
    Part.LineSegment(Vector(34.925, 135.89, 0), Vector(9.525, 135.89, 0)),  # 6
    Part.LineSegment(Vector(9.525, 135.89, 0), Vector(9.525, 92.71, 0)),  # 7
], False)
sketch11.addConstraint([
    Sketcher.Constraint("Coincident", 0, 2, 1, 1),
    Sketcher.Constraint("Coincident", 1, 2, 2, 1),
    Sketcher.Constraint("Coincident", 2, 2, 3, 1),
    Sketcher.Constraint("Coincident", 3, 2, 0, 1),
    Sketcher.Constraint("Coincident", 4, 2, 5, 1),
    Sketcher.Constraint("Coincident", 5, 2, 6, 1),
    Sketcher.Constraint("Coincident", 6, 2, 7, 1),
    Sketcher.Constraint("Coincident", 7, 2, 4, 1),
    Sketcher.Constraint("Horizontal", 0),
    Sketcher.Constraint("Vertical", 1),
    Sketcher.Constraint("Horizontal", 2),
    Sketcher.Constraint("Vertical", 3),
    Sketcher.Constraint("Horizontal", 4),
    Sketcher.Constraint("Vertical", 5),
    Sketcher.Constraint("Horizontal", 6),
    Sketcher.Constraint("Vertical", 7),
    Sketcher.Constraint("PointOnObject", 0, 2, -2),
    Sketcher.Constraint("DistanceX", 4, 1, 4, 2, Q("1 in")),
    Sketcher.Constraint("DistanceY", 1, 1, 1, 2, Q("9.2 in")),
    Sketcher.Constraint("DistanceY", 5, 1, 5, 2, Q("1.7 in")),
    Sketcher.Constraint("DistanceX", 0, 2, 0, 1, Q("1.75 in")),
    Sketcher.Constraint("DistanceY", 0, 2, -1, 1, Q("0.1 in")),
    Sketcher.Constraint("DistanceY", -1, 1, 4, 2, Q("3.65 in")),
    Sketcher.Constraint("DistanceX", -1, 1, 4, 2, Q("1.375 in")),
])
sketch11.setExpression("Constraints[17]", "Params.sketch11_width")
sketch11.setExpression("Constraints[18]", "Params.sketch11_height")
sketch11.setExpression("Constraints[19]", "Params.sketch11_height2")
sketch11.setExpression("Constraints[20]", "Params.sketch11_width2")
pad6 = body.newObject("PartDesign::Pad", "Pad005")
pad6.Profile = sketch11
pad6.setExpression("Length", "Params.pad6_length")
pad6.Reversed = True
doc.recompute()

fillet = body.newObject("PartDesign::Fillet", "Fillet")
fillet.Base = (pad6, edges_at(pad6, [(-180.34, 22.225, 231.14)]))
fillet.setExpression("Radius", "Params.fillet_radius")
doc.recompute()

fillet2 = body.newObject("PartDesign::Fillet", "Fillet001")
fillet2.Base = (fillet, edges_at(fillet, [(2.54, 22.225, -2.54)]))
fillet2.setExpression("Radius", "Params.fillet2_radius")
doc.recompute()

fillet3 = body.newObject("PartDesign::Fillet", "Fillet002")
fillet3.Base = (fillet2, edges_at(fillet2, [(2.54, 22.225, 231.14)]))
fillet3.setExpression("Radius", "Params.fillet3_radius")
doc.recompute()

fillet4 = body.newObject("PartDesign::Fillet", "Fillet003")
fillet4.Base = (fillet3, edges_at(fillet3, [(-180.34, 22.225, -2.54)]))
fillet4.setExpression("Radius", "Params.fillet4_radius")
doc.recompute()

fillet5 = body.newObject("PartDesign::Fillet", "Fillet004")
fillet5.Base = (fillet4, edges_at(fillet4, [
    (-88.9, 44.45, -2.54),
    (2.54, 44.45, 114.3),
    (-88.9, 44.45, 231.14),
    (-180.34, 44.45, 114.3),
]))
fillet5.setExpression("Radius", "Params.fillet5_radius")

doc.recompute()
